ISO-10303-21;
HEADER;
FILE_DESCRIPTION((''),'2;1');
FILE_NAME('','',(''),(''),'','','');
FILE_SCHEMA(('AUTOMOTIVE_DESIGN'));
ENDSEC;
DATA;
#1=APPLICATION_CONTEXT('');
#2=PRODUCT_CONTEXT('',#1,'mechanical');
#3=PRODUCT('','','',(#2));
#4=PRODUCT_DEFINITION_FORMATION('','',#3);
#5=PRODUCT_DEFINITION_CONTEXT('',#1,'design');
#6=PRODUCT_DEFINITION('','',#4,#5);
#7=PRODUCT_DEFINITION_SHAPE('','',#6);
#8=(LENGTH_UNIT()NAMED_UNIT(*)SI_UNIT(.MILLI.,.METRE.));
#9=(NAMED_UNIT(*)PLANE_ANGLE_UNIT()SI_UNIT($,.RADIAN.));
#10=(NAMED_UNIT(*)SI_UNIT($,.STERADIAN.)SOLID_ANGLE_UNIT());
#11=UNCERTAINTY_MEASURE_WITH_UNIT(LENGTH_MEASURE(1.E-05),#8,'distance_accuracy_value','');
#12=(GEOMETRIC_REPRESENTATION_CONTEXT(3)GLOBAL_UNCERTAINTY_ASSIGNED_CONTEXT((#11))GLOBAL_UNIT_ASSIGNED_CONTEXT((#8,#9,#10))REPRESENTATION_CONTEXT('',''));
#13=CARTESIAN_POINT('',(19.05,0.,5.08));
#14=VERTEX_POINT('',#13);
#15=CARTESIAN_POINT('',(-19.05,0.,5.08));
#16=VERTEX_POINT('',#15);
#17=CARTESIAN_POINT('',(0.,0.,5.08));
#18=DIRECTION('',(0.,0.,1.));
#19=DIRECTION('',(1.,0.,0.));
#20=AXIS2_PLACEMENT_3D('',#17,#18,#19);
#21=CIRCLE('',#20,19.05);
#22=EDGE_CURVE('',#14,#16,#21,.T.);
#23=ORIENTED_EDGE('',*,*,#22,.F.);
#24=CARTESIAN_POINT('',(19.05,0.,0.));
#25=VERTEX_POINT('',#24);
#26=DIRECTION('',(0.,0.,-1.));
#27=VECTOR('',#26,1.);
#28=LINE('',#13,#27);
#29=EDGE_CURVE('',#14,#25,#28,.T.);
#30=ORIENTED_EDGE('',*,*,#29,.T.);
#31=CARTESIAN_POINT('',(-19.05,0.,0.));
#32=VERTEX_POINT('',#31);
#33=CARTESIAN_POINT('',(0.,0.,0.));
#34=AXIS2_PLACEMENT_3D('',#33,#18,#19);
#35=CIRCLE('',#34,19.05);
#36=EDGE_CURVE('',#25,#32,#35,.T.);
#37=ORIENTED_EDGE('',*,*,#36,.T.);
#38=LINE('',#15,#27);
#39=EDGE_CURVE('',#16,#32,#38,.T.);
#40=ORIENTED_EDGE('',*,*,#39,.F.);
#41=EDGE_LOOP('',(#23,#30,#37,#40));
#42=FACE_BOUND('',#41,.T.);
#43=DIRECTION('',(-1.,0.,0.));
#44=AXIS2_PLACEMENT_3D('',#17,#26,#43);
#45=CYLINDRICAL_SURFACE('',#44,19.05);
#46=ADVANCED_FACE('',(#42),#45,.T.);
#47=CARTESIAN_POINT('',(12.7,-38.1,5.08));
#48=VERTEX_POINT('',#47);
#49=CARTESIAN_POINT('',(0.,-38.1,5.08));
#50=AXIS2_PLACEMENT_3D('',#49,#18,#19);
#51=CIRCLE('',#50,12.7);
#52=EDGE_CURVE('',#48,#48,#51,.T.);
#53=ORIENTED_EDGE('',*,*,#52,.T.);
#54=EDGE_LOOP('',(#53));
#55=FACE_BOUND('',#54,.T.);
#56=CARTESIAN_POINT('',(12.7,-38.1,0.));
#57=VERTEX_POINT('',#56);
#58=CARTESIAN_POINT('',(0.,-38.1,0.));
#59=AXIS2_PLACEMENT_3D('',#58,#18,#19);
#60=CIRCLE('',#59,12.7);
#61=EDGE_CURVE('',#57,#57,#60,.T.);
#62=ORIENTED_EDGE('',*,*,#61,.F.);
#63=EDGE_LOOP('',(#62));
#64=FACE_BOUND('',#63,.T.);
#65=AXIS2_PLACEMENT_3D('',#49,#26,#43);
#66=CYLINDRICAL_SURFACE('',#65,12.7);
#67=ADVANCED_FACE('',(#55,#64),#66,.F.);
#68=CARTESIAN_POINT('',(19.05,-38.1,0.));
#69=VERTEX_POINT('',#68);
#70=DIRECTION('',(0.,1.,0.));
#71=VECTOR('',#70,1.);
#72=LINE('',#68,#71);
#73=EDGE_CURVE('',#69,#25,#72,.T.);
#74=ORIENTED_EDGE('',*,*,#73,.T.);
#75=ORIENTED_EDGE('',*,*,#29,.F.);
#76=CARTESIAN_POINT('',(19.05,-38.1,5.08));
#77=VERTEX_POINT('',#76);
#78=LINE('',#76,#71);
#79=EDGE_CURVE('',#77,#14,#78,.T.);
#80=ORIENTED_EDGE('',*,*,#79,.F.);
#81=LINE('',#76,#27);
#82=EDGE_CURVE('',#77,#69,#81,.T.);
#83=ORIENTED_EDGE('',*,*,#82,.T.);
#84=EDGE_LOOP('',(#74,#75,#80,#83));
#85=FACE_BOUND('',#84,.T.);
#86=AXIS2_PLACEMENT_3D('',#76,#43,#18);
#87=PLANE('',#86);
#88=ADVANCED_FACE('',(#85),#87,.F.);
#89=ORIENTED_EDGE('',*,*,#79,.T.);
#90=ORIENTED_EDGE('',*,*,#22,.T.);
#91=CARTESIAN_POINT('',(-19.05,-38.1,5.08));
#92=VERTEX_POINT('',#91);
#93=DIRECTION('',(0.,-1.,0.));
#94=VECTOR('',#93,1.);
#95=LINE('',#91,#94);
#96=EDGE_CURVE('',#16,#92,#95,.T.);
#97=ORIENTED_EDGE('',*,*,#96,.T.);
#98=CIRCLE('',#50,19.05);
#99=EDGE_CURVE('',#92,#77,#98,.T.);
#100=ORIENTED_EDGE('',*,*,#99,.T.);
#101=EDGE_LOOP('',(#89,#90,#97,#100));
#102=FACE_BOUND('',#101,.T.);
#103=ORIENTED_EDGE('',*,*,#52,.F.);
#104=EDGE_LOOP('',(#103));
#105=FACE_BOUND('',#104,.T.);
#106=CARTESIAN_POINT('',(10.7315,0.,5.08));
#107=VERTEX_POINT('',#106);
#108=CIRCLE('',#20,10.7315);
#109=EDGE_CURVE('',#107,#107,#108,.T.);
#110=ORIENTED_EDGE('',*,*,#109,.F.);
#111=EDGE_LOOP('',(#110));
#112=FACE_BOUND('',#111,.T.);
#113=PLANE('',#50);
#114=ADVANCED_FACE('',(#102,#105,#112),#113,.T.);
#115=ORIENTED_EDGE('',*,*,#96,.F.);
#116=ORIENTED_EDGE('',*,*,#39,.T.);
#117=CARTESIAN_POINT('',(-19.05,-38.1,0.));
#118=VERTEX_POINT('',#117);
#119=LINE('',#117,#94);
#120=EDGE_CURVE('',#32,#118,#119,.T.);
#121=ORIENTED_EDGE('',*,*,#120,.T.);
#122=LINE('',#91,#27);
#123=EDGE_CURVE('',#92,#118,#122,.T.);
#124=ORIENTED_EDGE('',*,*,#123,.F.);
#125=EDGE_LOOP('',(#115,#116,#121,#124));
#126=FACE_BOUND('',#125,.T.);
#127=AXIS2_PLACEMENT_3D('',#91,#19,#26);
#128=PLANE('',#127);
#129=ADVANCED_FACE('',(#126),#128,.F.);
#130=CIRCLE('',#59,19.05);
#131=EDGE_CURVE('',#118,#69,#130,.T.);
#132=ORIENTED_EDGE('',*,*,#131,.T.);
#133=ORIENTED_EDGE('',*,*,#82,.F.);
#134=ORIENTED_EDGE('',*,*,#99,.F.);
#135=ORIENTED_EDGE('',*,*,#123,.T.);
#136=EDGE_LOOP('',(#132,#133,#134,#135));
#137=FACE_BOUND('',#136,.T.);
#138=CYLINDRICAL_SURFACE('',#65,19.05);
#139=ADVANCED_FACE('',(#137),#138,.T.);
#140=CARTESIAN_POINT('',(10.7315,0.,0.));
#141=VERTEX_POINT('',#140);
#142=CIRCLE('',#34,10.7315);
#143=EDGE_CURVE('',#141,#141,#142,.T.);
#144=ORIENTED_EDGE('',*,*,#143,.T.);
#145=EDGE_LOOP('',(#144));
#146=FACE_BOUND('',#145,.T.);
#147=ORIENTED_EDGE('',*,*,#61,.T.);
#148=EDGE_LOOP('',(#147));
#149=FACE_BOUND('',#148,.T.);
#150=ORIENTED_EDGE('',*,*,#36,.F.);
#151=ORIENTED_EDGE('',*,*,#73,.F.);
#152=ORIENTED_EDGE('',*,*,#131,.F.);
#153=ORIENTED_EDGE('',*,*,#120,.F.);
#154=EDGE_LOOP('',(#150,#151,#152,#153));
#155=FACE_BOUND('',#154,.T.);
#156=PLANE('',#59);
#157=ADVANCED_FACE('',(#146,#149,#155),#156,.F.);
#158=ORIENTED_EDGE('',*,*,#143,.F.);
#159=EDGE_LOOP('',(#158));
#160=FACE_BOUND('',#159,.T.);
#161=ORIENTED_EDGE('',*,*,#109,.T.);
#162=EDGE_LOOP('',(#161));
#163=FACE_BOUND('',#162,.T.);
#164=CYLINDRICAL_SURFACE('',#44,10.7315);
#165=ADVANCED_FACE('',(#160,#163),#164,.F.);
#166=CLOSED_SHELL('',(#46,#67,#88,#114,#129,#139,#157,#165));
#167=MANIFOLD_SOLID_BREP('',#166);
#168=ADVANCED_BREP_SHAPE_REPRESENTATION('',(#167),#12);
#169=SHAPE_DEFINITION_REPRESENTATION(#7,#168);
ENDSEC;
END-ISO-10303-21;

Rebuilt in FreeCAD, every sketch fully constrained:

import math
import FreeCAD as App
import Part
import Sketcher
Q = App.Units.Quantity

doc = App.newDocument("Part")
body = doc.addObject("PartDesign::Body", "Body")

# Sketch on XY plane
sketch1 = body.newObject("Sketcher::SketchObject", "Sketch")
sketch1.AttachmentSupport = (doc.getObject("XY_Plane"), [""])
sketch1.MapMode = "FlatFace"
sketch1.addGeometry(Part.LineSegment(App.Vector(-19.05, 0, 0), App.Vector(-19.05, -38.1, 0)), False)
sketch1.addGeometry(Part.ArcOfCircle(Part.Circle(App.Vector(0, -38.1, 0), App.Vector(0, 0, 1), 19.05), math.radians(180), math.radians(360)), False)
sketch1.addGeometry(Part.LineSegment(App.Vector(19.05, -38.1, 0), App.Vector(19.05, 0, 0)), False)
sketch1.addGeometry(Part.ArcOfCircle(Part.Circle(App.Vector(0, 0, 0), App.Vector(0, 0, 1), 19.05), math.radians(0), math.radians(180)), False)
sketch1.addGeometry(Part.Circle(App.Vector(0, -38.1, 0), App.Vector(0, 0, 1), 12.7), False)
sketch1.addGeometry(Part.Circle(App.Vector(0, 0, 0), App.Vector(0, 0, 1), 10.7315), False)
sketch1.addConstraint(Sketcher.Constraint("Tangent", 0, 2, 1, 1))
sketch1.addConstraint(Sketcher.Constraint("Tangent", 1, 2, 2, 1))
sketch1.addConstraint(Sketcher.Constraint("Tangent", 2, 2, 3, 1))
sketch1.addConstraint(Sketcher.Constraint("Tangent", 3, 2, 0, 1))
sketch1.addConstraint(Sketcher.Constraint("Vertical", 0))
sketch1.addConstraint(Sketcher.Constraint("Vertical", 2))
sketch1.addConstraint(Sketcher.Constraint("Coincident", 3, 3, -1, 1))
sketch1.addConstraint(Sketcher.Constraint("Coincident", 5, 3, -1, 1))
sketch1.addConstraint(Sketcher.Constraint("Coincident", 4, 3, 1, 3))
sketch1.addConstraint(Sketcher.Constraint("Diameter", 4, Q("1 in")))
sketch1.addConstraint(Sketcher.Constraint("Radius", 1, Q("0.75 in")))
sketch1.addConstraint(Sketcher.Constraint("Diameter", 5, Q("0.845 in")))
sketch1.addConstraint(Sketcher.Constraint("DistanceY", 0, 2, 0, 1, Q("1.5 in")))
pad1 = body.newObject("PartDesign::Pad", "Pad")
pad1.Profile = sketch1
pad1.Length = Q("0.2 in")

doc.recompute()
